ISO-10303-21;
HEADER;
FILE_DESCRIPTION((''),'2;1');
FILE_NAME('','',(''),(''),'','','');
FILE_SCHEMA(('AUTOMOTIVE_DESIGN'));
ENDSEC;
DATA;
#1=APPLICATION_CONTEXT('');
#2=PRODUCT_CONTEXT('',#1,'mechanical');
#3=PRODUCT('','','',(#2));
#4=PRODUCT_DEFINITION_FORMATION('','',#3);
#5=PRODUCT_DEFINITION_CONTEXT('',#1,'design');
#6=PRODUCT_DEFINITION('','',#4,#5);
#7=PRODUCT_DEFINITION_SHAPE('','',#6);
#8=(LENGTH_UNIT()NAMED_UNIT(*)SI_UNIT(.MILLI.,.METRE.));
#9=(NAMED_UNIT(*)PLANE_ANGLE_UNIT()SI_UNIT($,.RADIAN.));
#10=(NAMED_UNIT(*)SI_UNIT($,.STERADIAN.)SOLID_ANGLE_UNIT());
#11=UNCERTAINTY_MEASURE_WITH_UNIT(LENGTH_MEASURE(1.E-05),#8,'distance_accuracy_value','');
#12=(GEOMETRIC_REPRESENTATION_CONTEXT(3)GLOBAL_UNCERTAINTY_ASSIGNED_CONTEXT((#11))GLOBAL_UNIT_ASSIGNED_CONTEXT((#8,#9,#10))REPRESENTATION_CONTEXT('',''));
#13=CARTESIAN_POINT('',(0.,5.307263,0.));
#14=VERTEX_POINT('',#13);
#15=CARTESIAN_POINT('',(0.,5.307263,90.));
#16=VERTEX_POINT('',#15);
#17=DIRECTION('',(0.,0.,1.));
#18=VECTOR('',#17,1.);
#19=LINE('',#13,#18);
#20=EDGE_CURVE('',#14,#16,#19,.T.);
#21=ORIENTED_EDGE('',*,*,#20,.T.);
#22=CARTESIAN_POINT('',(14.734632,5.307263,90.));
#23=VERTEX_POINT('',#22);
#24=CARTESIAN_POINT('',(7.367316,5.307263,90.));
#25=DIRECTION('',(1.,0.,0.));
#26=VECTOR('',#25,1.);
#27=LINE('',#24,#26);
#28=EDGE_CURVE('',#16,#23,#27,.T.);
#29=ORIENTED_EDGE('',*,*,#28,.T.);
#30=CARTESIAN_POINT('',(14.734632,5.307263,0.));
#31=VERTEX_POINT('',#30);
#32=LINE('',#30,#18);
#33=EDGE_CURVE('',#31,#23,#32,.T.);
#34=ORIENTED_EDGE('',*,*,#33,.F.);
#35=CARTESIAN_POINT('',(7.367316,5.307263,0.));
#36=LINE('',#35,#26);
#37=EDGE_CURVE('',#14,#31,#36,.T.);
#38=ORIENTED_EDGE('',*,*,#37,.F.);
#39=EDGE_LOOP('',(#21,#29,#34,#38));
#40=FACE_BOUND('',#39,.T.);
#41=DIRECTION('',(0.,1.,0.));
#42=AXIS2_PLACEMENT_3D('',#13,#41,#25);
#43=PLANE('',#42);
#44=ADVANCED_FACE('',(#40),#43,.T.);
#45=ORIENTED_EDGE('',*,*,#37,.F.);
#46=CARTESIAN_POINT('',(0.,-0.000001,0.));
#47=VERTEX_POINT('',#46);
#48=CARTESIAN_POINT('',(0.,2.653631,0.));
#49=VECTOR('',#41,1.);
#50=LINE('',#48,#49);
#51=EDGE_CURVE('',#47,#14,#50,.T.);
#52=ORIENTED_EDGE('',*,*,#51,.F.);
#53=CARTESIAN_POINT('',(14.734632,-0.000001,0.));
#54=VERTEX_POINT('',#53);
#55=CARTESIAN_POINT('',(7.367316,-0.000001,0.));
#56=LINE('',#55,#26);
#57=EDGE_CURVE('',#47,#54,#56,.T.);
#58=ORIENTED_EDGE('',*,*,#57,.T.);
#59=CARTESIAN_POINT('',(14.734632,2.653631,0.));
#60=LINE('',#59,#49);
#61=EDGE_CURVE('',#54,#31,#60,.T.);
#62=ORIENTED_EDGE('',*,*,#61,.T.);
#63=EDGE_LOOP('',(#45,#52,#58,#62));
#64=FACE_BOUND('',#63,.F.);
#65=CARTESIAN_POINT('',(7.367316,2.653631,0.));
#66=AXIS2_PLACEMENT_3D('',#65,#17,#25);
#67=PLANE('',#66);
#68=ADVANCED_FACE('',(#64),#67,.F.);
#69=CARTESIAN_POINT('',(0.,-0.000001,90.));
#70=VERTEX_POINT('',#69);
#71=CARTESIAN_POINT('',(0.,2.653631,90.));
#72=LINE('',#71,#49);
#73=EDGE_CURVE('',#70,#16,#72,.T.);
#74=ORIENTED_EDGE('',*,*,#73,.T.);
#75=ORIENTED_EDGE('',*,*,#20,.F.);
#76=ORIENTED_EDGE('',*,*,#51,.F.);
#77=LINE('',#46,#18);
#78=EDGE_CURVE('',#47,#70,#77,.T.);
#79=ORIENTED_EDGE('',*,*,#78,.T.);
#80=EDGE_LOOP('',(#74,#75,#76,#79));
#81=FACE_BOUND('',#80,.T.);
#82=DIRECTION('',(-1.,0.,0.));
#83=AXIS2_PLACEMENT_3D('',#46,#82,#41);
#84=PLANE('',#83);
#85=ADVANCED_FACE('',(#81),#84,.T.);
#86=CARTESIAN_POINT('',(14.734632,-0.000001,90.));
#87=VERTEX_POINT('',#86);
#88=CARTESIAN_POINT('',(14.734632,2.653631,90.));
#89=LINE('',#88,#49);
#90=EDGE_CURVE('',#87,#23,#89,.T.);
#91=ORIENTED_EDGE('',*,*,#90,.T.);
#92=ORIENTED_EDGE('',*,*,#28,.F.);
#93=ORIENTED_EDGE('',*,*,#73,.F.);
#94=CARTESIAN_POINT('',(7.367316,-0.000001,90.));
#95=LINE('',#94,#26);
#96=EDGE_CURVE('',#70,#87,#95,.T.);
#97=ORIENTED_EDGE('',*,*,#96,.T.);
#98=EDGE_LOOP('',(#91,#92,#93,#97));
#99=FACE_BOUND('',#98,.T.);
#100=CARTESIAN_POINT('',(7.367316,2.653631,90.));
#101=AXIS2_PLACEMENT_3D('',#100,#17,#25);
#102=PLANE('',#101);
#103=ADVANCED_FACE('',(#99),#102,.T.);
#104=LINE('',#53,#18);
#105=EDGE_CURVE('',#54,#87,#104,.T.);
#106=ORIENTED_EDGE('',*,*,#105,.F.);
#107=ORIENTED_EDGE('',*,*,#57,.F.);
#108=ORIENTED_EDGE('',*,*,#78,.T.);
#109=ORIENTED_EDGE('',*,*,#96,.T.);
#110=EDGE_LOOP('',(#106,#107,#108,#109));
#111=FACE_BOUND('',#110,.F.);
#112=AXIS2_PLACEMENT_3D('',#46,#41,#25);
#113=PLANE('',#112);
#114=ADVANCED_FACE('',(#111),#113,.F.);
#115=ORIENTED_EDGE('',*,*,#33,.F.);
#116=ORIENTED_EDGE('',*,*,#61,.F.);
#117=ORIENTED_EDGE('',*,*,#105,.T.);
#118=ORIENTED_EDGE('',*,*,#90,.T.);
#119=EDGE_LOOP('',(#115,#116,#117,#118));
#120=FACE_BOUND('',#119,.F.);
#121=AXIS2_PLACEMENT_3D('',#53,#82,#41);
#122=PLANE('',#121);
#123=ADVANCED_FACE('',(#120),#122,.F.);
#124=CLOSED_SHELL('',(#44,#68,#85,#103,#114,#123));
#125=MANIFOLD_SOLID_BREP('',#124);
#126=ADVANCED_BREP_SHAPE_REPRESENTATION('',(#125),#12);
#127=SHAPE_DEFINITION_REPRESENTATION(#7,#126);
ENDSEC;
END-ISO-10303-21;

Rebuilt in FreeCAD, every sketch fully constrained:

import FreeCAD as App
import Part
import Sketcher


def add_polygon(sketch, points):
    """Adds a closed chain of lines whose ends are joined by coincident constraints."""
    first, n = sketch.GeometryCount, len(points)
    for a, b in zip(points, points[1:] + points[:1]):
        sketch.addGeometry(Part.LineSegment(App.Vector(*a, 0), App.Vector(*b, 0)), False)
    for i in range(n):
        sketch.addConstraint(Sketcher.Constraint("Coincident", first + i, 2, first + (i + 1) % n, 1))

doc = App.newDocument("Part")
params = doc.addObject("Spreadsheet::Sheet", "Params")
for row, (alias, value) in enumerate([
    ("pad1_length", "90 mm"),
], start=1):
    params.set(f"A{row}", alias)
    params.set(f"B{row}", "=" + value)
    params.setAlias(f"B{row}", alias)

body = doc.addObject("PartDesign::Body", "Body")

# Sketch on XY plane
sketch1 = body.newObject("Sketcher::SketchObject", "Sketch")
sketch1.AttachmentSupport = (doc.getObject("XY_Plane"), [""])
sketch1.MapMode = "FlatFace"
add_polygon(sketch1, [(0, 5), (0, 0), (15, 0), (15, 5)])  # lines 0-3
sketch1.addConstraint([
    Sketcher.Constraint("Vertical", 0),
    Sketcher.Constraint("Horizontal", 1),
    Sketcher.Constraint("Vertical", 2),
    Sketcher.Constraint("Horizontal", 3),
    Sketcher.Constraint("Coincident", 0, 2, -1, 1),
    Sketcher.Constraint("DistanceX", 1, 1, 1, 2, 14.734632),
    Sketcher.Constraint("DistanceY", 0, 2, 0, 1, 5.307263),
])
pad1 = body.newObject("PartDesign::Pad", "Pad")
pad1.Profile = sketch1
pad1.setExpression("Length", "Params.pad1_length")

doc.recompute()
